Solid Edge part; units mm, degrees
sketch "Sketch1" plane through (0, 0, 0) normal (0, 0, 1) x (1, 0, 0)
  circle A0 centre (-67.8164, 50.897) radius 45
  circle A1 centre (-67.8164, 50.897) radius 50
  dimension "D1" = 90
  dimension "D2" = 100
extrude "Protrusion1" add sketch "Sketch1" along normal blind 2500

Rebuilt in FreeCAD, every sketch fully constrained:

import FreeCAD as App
import Part
import Sketcher
Q = App.Units.Quantity

doc = App.newDocument("Part")
body = doc.addObject("PartDesign::Body", "Body")

# Sketch on XY plane
sketch1 = doc.addObject("Sketcher::SketchObject", "Sketch")
body.addObject(sketch1)
sketch1.AttachmentSupport = (doc.XY_Plane, [""])
sketch1.MapMode = "FlatFace"
sketch1.addGeometry([
    Part.Circle(App.Vector(-68, 51, 0), App.Vector(0, 0, 1), 50),
    Part.Circle(App.Vector(-68, 51, 0), App.Vector(0, 0, 1), 45),
], False)
sketch1.addConstraint([
    Sketcher.Constraint("Coincident", 1, 3, 0, 3),
    Sketcher.Constraint("Diameter", 0, Q("3.937 in")),
    Sketcher.Constraint("Diameter", 1, Q("3.5433 in")),
    Sketcher.Constraint("DistanceX", 0, 3, -1, 1, Q("67.8164 mm")),
    Sketcher.Constraint("DistanceY", -1, 1, 0, 3, Q("50.897 mm")),
])
pad1 = doc.addObject("PartDesign::Pad", "Pad")
body.addObject(pad1)
pad1.Profile = sketch1
pad1.Length = Q("98.4251969 in")

doc.recompute()
